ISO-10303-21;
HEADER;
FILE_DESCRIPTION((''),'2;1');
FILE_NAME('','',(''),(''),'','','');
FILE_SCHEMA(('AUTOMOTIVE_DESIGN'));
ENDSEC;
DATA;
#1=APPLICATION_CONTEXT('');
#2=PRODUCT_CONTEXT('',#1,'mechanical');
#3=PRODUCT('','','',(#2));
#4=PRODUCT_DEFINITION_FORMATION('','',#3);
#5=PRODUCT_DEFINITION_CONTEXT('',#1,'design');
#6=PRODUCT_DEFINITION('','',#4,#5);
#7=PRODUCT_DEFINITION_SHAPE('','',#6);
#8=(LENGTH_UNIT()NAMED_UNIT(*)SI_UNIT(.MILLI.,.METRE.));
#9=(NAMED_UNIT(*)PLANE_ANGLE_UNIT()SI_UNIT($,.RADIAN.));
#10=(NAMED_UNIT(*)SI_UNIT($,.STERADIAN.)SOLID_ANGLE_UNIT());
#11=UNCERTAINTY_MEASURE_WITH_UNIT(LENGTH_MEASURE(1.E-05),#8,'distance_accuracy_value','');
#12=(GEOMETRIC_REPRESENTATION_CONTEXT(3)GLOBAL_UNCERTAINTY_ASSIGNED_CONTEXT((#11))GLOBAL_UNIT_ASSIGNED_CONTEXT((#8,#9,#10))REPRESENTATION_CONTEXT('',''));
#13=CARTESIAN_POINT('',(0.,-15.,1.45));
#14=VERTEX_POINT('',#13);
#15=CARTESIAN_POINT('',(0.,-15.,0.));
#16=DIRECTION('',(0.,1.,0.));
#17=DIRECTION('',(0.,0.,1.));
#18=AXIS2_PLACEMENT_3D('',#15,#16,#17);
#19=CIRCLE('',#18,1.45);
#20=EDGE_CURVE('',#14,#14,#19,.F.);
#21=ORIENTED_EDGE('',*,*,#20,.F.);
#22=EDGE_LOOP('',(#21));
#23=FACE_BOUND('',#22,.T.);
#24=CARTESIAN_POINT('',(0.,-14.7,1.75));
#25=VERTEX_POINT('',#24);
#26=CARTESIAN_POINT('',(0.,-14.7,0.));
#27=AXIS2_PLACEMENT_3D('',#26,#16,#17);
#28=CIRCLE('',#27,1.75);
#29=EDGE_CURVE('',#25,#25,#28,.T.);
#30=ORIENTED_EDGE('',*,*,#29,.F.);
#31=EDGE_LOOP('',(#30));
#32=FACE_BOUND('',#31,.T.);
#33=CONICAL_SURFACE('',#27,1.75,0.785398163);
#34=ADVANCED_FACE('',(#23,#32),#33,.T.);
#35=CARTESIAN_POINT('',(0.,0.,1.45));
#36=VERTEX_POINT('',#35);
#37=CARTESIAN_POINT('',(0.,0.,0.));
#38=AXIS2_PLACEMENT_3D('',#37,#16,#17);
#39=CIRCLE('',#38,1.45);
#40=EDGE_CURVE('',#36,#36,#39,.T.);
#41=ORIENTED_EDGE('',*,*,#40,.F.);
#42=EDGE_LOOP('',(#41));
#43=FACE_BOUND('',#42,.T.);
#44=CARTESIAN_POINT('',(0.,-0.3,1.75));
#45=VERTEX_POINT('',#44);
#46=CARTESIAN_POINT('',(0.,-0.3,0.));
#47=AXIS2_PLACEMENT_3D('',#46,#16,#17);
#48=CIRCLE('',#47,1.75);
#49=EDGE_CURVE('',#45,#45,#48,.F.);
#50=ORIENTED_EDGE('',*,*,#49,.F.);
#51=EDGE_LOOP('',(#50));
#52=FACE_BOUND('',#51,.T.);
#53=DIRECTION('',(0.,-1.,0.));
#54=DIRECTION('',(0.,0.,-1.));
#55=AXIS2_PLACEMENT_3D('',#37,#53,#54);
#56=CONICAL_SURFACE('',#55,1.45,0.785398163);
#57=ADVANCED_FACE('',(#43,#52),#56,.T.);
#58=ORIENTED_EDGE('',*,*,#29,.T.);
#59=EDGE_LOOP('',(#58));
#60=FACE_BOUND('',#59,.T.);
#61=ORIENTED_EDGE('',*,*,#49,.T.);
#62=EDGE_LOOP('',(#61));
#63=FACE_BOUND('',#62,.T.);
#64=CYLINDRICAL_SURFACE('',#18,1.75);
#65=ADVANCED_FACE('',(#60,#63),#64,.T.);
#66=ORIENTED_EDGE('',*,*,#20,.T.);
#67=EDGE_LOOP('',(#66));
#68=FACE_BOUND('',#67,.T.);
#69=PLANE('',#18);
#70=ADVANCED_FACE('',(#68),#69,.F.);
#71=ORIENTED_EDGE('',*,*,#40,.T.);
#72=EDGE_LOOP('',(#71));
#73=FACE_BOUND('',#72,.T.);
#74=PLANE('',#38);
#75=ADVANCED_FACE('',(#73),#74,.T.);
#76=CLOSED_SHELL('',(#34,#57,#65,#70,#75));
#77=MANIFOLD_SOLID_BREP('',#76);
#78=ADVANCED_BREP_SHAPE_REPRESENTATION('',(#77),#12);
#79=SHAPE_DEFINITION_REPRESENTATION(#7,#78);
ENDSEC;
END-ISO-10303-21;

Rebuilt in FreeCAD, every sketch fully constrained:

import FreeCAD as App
import Part
import Sketcher


def edges_at(feature, points):
    """Names of the edges that pass closest to the given points."""
    edges = feature.Shape.Edges
    near = lambda p: min(range(len(edges)), key=lambda i: edges[i].distToShape(Part.Vertex(*p))[0])
    return sorted({f"Edge{near(p) + 1}" for p in points})

doc = App.newDocument("Part")
params = doc.addObject("Spreadsheet::Sheet", "Params")
for row, (alias, value) in enumerate([
    ("sketch1_diameter", "3.5 mm"),
    ("pad1_length", "15 mm"),
    ("chamfer_size", "0.3 mm"),
], start=1):
    params.set(f"A{row}", alias)
    params.set(f"B{row}", "=" + value)
    params.setAlias(f"B{row}", alias)

body = doc.addObject("PartDesign::Body", "Body")

sketch1 = doc.addObject("Sketcher::SketchObject", "Sketch")
body.addObject(sketch1)
sketch1.AttachmentSupport = (doc.XZ_Plane, [""])
sketch1.MapMode = "FlatFace"
sketch1.addGeometry(Part.Circle(App.Vector(0, 0, 0), App.Vector(0, 0, 1), 1.8), False)
sketch1.addConstraint(Sketcher.Constraint("Coincident", 0, 3, -1, 1))
sketch1.addConstraint(Sketcher.Constraint("Diameter", 0, 3.5))
sketch1.setExpression("Constraints[1]", "Params.sketch1_diameter")
pad1 = doc.addObject("PartDesign::Pad", "Pad")
body.addObject(pad1)
pad1.Profile = sketch1
pad1.setExpression("Length", "Params.pad1_length")
doc.recompute()

chamfer = doc.addObject("PartDesign::Chamfer", "Chamfer")
body.addObject(chamfer)
chamfer.Base = (pad1, edges_at(pad1, [(0, 0, -1.75), (0, -15, -1.75)]))
chamfer.setExpression("Size", "Params.chamfer_size")

doc.recompute()
